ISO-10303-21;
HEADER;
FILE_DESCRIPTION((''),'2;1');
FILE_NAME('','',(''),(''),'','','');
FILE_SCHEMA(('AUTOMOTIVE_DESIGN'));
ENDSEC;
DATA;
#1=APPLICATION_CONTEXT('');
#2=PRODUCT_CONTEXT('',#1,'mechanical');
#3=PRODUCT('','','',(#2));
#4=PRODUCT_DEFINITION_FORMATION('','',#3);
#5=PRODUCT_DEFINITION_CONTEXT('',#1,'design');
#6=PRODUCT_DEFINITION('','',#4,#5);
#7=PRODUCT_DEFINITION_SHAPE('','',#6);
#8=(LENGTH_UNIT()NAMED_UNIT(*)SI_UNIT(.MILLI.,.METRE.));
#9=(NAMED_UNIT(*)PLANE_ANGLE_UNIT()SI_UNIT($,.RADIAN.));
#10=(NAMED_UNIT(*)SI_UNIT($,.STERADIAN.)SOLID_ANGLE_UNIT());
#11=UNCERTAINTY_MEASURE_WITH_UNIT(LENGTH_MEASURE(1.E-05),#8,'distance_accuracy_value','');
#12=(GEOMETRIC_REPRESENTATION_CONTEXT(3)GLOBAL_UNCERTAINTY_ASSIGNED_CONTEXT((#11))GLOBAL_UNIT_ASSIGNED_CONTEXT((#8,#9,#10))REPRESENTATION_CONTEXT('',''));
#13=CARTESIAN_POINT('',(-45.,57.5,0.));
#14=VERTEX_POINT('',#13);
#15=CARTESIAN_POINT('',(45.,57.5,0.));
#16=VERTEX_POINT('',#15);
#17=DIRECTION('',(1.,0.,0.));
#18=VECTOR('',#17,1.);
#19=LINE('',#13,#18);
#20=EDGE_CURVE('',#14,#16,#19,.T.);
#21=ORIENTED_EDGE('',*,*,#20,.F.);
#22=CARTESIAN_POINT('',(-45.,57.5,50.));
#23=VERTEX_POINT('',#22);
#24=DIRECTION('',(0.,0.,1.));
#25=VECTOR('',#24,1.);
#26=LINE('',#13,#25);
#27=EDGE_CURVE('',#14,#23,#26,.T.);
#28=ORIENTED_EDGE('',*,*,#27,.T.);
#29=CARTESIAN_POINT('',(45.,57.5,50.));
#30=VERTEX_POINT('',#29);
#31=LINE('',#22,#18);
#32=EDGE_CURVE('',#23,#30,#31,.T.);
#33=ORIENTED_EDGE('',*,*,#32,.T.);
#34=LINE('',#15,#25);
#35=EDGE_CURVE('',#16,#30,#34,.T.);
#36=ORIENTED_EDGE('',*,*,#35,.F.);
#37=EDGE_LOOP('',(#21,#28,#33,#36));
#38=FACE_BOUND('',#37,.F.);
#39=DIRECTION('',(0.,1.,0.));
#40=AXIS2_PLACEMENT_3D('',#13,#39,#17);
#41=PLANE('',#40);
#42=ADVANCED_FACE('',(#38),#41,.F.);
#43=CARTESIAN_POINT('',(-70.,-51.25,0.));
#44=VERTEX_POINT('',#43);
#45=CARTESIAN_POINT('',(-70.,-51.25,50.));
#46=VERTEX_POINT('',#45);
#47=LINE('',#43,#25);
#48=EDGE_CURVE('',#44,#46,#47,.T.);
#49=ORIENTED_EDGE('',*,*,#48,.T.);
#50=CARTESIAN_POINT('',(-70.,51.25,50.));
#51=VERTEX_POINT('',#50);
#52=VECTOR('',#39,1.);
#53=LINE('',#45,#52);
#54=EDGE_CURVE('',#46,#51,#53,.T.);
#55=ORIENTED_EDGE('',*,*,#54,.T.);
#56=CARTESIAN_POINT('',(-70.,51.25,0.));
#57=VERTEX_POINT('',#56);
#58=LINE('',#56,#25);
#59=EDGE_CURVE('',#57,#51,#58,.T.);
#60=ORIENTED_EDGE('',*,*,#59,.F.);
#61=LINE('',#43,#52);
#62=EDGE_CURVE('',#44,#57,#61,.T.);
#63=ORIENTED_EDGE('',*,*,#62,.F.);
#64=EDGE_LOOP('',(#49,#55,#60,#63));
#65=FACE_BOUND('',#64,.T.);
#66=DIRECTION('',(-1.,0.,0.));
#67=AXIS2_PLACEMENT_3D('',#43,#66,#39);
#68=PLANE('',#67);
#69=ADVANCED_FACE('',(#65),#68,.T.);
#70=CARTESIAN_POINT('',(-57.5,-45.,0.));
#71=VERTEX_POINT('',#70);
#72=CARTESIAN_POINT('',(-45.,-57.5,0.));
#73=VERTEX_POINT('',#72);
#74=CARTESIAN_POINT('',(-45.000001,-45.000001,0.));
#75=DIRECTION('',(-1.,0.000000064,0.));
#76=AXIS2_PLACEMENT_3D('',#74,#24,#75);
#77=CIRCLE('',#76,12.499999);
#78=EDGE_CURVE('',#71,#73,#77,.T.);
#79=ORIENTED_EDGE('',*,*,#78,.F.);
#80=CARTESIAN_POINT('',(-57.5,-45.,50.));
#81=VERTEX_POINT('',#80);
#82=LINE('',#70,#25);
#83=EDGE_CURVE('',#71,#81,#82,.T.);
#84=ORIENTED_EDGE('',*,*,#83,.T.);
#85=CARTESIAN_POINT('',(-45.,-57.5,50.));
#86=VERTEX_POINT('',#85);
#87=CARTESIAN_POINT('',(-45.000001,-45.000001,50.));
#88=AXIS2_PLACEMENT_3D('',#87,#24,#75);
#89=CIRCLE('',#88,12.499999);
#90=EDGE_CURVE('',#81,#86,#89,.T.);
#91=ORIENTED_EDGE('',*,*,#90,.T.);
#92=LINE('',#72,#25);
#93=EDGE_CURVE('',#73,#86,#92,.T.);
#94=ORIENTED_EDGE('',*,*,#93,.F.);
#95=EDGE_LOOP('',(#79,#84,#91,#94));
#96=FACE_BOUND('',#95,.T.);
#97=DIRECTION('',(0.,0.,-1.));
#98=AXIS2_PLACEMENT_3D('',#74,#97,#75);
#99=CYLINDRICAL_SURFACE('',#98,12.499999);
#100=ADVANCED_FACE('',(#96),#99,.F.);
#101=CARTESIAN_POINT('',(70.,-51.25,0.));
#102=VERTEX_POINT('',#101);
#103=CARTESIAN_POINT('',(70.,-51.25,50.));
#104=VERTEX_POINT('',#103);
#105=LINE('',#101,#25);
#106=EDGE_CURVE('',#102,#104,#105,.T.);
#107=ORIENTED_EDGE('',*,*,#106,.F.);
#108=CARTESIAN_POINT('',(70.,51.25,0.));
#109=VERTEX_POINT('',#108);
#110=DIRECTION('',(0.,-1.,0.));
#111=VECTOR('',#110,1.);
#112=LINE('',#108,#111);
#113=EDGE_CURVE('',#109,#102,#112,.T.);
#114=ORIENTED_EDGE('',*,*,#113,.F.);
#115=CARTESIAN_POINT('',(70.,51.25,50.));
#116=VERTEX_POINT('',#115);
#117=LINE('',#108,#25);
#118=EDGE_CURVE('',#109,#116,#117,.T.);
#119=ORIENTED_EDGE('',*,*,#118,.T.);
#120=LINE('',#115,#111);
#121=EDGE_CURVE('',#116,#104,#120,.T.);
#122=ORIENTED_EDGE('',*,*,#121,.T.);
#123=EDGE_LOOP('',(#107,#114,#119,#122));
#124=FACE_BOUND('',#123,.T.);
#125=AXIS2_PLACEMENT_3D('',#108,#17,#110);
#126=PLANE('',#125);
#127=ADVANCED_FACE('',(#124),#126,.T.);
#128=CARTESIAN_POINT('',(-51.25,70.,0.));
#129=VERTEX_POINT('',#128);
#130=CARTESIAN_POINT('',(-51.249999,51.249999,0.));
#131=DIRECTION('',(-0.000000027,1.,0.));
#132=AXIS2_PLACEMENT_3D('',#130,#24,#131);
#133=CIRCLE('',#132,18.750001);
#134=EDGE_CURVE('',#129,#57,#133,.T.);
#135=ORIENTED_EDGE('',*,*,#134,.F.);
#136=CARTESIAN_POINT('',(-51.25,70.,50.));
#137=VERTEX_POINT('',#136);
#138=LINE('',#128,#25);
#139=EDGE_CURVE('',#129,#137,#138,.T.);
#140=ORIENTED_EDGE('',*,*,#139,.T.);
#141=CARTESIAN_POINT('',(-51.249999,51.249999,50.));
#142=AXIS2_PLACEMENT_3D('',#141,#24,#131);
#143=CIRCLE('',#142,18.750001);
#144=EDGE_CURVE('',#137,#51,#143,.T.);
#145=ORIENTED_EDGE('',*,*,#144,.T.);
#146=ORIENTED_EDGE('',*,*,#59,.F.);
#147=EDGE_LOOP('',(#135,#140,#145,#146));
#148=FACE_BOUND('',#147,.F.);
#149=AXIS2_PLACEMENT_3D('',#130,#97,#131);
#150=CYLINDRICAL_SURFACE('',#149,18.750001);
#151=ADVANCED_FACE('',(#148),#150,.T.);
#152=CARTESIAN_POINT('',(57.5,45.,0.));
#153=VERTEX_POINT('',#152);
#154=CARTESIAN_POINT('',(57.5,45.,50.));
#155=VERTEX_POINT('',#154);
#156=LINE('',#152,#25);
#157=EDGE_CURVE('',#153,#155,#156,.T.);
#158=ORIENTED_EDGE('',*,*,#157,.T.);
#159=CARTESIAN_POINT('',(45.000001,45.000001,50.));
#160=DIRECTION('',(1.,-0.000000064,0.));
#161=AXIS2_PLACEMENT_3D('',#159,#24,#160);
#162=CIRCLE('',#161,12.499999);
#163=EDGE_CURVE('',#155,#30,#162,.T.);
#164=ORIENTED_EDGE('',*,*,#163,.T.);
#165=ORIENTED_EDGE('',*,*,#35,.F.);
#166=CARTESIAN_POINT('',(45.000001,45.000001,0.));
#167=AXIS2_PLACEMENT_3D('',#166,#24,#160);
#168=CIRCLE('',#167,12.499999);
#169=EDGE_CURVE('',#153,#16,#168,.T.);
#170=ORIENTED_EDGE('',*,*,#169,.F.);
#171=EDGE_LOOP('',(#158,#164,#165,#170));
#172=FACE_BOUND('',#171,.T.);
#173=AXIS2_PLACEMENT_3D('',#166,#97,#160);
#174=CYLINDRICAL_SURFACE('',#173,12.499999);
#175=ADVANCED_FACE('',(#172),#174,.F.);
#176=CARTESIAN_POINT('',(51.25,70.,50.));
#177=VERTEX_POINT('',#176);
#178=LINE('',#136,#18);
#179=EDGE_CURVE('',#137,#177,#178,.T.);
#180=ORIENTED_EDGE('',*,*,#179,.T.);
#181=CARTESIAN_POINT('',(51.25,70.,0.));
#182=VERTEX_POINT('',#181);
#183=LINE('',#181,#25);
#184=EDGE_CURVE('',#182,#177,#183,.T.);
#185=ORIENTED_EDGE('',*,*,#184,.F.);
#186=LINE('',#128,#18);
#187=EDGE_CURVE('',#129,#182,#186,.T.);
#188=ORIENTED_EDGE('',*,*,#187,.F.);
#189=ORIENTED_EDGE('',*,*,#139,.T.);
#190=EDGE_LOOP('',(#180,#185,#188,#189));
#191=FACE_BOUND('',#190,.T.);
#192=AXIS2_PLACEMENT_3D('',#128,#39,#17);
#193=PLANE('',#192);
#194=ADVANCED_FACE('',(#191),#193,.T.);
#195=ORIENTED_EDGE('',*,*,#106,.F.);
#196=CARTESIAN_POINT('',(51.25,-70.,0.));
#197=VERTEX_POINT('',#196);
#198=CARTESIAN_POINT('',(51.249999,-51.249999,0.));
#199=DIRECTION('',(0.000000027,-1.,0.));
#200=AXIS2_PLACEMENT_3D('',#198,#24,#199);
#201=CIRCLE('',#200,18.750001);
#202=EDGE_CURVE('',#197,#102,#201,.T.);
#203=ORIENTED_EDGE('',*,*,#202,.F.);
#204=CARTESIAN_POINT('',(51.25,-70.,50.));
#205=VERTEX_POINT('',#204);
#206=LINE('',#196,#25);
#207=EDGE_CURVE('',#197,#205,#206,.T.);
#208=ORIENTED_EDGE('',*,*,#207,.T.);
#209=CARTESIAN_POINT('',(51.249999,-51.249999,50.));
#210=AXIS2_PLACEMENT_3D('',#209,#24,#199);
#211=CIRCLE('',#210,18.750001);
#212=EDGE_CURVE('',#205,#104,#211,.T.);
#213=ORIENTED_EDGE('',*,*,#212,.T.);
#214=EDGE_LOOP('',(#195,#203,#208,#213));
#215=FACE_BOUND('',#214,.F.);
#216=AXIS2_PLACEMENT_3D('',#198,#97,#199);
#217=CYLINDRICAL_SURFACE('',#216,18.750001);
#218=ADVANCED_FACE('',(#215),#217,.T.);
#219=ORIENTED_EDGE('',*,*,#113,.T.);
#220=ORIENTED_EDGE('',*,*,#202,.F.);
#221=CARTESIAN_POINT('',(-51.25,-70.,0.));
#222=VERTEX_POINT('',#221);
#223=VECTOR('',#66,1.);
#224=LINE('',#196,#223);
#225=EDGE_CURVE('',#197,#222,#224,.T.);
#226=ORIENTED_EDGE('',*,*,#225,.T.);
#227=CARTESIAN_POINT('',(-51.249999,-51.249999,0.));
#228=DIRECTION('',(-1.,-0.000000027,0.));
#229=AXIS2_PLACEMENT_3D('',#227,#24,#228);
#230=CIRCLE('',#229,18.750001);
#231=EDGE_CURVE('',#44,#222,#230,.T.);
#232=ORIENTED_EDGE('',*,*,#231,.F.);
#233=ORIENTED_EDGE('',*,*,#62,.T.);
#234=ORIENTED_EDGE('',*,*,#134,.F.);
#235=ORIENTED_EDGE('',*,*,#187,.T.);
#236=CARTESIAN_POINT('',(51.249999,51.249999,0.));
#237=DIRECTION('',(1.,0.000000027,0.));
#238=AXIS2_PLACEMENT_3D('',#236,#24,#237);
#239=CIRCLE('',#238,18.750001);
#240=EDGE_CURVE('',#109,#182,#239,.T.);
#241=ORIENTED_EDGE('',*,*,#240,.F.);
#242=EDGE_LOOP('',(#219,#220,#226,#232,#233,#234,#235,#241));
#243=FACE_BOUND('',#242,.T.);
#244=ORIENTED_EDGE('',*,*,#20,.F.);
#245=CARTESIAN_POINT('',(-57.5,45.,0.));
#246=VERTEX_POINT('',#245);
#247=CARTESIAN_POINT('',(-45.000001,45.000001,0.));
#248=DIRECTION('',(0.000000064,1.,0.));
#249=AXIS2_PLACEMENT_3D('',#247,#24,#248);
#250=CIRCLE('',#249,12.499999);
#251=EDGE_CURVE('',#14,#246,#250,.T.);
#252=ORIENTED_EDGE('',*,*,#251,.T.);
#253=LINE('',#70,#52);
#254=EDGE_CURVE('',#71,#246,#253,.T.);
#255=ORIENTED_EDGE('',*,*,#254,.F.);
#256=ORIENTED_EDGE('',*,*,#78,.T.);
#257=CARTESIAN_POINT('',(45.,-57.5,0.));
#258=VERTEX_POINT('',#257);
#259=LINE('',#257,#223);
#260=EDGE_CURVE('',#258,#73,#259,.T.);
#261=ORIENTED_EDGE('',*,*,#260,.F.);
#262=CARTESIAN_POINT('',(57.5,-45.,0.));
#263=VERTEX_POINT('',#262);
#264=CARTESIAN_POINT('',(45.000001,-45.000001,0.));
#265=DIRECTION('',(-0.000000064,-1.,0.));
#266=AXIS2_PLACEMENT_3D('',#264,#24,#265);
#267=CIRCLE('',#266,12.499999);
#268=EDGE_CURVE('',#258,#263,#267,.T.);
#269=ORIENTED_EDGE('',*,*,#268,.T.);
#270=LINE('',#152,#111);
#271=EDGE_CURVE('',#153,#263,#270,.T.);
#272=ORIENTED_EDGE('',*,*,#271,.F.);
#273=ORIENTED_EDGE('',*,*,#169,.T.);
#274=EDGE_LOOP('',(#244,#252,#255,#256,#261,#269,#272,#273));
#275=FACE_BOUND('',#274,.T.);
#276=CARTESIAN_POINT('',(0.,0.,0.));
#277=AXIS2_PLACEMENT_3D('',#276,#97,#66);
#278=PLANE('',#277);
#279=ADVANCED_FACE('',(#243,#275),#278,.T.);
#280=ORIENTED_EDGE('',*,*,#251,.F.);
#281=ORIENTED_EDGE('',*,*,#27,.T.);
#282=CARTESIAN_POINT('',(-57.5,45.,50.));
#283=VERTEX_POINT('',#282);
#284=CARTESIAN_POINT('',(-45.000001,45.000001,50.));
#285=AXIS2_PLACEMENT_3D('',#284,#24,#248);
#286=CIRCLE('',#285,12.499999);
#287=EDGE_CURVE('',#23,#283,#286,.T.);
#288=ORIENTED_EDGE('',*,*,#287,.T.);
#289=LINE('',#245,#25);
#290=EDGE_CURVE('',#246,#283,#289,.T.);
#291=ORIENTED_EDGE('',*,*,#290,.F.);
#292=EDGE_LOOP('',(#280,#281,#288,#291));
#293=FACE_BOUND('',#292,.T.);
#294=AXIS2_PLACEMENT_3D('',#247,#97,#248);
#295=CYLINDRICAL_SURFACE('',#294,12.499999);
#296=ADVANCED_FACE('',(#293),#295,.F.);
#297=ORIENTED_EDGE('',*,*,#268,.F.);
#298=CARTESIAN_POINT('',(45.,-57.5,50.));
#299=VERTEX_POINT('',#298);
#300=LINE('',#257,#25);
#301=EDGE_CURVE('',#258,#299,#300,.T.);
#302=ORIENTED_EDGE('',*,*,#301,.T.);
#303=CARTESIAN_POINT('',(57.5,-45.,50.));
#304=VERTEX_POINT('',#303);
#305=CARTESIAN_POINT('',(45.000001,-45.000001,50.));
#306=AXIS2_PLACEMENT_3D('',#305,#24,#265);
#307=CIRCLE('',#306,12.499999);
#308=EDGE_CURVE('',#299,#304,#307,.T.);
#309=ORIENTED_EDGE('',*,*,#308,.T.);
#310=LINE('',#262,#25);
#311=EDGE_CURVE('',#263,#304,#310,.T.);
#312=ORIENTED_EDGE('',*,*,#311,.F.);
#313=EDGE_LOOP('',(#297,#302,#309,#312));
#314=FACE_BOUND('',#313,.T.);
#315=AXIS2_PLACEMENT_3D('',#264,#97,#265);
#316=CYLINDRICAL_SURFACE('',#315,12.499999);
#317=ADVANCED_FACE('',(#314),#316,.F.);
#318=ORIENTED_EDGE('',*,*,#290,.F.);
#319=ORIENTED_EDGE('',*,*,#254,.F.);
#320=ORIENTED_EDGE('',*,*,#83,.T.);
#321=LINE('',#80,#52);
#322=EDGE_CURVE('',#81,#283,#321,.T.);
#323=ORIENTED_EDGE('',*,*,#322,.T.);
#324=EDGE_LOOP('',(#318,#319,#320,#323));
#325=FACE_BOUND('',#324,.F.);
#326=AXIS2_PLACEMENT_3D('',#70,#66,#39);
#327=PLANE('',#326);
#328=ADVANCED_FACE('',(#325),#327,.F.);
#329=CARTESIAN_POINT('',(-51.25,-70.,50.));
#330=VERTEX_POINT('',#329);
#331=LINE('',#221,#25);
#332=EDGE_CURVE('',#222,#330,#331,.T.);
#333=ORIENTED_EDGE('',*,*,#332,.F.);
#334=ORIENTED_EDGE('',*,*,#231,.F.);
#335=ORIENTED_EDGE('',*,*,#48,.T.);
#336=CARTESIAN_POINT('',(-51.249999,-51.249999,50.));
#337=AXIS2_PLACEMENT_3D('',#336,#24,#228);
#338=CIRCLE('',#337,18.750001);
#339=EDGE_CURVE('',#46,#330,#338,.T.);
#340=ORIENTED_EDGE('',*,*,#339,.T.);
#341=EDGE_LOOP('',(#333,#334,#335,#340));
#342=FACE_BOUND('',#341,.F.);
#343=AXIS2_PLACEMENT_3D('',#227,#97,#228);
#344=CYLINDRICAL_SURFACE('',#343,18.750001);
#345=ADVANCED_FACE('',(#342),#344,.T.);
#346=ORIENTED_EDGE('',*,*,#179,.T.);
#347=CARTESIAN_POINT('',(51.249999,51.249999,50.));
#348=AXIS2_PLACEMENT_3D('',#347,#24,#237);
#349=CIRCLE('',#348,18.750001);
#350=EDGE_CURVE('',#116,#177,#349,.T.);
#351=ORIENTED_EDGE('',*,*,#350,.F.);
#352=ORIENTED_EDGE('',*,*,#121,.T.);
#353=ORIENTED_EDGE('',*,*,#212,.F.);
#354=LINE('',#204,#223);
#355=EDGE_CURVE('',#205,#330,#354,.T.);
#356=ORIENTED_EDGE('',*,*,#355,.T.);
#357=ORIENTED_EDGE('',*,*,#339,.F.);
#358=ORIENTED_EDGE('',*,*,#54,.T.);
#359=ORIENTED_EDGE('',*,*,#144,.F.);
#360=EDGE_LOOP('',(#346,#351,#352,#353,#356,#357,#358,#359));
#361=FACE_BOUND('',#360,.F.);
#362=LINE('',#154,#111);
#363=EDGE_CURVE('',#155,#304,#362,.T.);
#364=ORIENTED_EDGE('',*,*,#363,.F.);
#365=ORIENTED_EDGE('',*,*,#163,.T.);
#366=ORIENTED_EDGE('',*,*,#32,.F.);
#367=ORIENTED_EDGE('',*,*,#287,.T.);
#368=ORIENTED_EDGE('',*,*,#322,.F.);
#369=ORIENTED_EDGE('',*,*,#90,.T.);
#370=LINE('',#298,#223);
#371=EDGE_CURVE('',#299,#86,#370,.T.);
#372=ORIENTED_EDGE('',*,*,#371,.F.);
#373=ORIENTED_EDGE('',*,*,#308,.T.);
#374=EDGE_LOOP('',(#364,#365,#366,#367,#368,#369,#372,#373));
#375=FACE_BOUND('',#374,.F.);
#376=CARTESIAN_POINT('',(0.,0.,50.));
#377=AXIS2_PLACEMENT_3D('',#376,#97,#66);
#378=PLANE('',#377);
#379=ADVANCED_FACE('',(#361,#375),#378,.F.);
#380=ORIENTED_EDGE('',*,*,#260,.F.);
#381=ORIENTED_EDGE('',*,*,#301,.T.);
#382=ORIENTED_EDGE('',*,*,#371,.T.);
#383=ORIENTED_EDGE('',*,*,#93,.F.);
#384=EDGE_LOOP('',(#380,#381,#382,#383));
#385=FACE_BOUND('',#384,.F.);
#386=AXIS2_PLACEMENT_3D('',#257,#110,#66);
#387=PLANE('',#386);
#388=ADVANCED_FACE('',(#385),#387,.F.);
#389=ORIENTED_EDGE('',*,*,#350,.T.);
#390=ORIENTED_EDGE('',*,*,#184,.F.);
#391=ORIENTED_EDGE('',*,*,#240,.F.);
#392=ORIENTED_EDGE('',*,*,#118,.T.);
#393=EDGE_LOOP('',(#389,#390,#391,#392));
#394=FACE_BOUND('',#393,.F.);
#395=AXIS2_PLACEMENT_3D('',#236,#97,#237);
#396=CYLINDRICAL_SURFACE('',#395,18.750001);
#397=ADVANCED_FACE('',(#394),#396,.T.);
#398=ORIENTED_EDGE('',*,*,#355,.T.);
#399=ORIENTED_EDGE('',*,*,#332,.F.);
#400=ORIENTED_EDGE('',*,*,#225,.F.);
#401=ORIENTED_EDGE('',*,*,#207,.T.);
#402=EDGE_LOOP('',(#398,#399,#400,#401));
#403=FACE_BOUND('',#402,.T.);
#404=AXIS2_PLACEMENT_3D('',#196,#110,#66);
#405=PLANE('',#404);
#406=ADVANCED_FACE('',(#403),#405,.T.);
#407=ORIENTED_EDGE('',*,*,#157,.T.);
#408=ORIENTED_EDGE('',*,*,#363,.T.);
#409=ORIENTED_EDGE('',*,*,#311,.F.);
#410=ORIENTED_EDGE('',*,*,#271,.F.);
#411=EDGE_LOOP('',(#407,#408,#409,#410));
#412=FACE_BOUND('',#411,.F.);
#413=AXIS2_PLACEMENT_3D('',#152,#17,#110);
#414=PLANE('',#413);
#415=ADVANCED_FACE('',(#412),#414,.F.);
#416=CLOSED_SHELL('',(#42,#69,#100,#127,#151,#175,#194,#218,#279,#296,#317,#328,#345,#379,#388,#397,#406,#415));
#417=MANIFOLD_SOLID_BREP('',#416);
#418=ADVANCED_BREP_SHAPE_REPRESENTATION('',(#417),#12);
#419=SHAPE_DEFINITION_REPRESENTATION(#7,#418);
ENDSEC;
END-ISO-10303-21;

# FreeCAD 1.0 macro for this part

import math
import FreeCAD as App
import Part
import Sketcher
from FreeCAD import Vector
Q = App.Units.Quantity

doc = App.newDocument("Part")
body = doc.addObject("PartDesign::Body", "Body")

sketch1 = body.newObject("Sketcher::SketchObject", "Sketch")
sketch1.AttachmentSupport = (doc.getObject("XY_Plane"), [""])
sketch1.MapMode = "FlatFace"
sketch1.addGeometry([
    Part.LineSegment(Vector(51, 70, 0), Vector(-51, 70, 0)),
    Part.ArcOfCircle(Part.Circle(Vector(-51, 51, 0), Vector(0, 0, 1), 19), math.radians(90), math.radians(180)),
    Part.LineSegment(Vector(-70, 51, 0), Vector(-70, -51, 0)),
    Part.ArcOfCircle(Part.Circle(Vector(-51, -51, 0), Vector(0, 0, 1), 19), math.radians(-180), math.radians(-90)),
    Part.LineSegment(Vector(-51, -70, 0), Vector(51, -70, 0)),
    Part.ArcOfCircle(Part.Circle(Vector(51, -51, 0), Vector(0, 0, 1), 19), math.radians(-90), math.radians(0)),
    Part.LineSegment(Vector(70, -51, 0), Vector(70, 51, 0)),
    Part.ArcOfCircle(Part.Circle(Vector(51, 51, 0), Vector(0, 0, 1), 19), math.radians(0), math.radians(90)),
    Part.LineSegment(Vector(-45, 58, 0), Vector(45, 58, 0)),
    Part.ArcOfCircle(Part.Circle(Vector(45, 45, 0), Vector(0, 0, 1), 12), math.radians(0), math.radians(90)),
    Part.LineSegment(Vector(58, 45, 0), Vector(58, -45, 0)),
    Part.ArcOfCircle(Part.Circle(Vector(45, -45, 0), Vector(0, 0, 1), 12), math.radians(-90), math.radians(0)),
    Part.LineSegment(Vector(45, -58, 0), Vector(-45, -58, 0)),
    Part.ArcOfCircle(Part.Circle(Vector(-45, -45, 0), Vector(0, 0, 1), 12), math.radians(180), math.radians(270)),
    Part.LineSegment(Vector(-58, -45, 0), Vector(-58, 45, 0)),
    Part.ArcOfCircle(Part.Circle(Vector(-45, 45, 0), Vector(0, 0, 1), 12), math.radians(90), math.radians(180)),
], False)
sketch1.addConstraint([
    Sketcher.Constraint("Tangent", 0, 2, 1, 1),
    Sketcher.Constraint("Tangent", 1, 2, 2, 1),
    Sketcher.Constraint("Tangent", 2, 2, 3, 1),
    Sketcher.Constraint("Tangent", 3, 2, 4, 1),
    Sketcher.Constraint("Tangent", 4, 2, 5, 1),
    Sketcher.Constraint("Tangent", 5, 2, 6, 1),
    Sketcher.Constraint("Tangent", 6, 2, 7, 1),
    Sketcher.Constraint("Tangent", 7, 2, 0, 1),
    Sketcher.Constraint("Tangent", 8, 2, 9, 2),
    Sketcher.Constraint("Tangent", 9, 1, 10, 1),
    Sketcher.Constraint("Tangent", 10, 2, 11, 2),
    Sketcher.Constraint("Tangent", 11, 1, 12, 1),
    Sketcher.Constraint("Tangent", 12, 2, 13, 2),
    Sketcher.Constraint("Tangent", 13, 1, 14, 1),
    Sketcher.Constraint("Tangent", 14, 2, 15, 2),
    Sketcher.Constraint("Tangent", 15, 1, 8, 1),
    Sketcher.Constraint("Horizontal", 0),
    Sketcher.Constraint("Vertical", 2),
    Sketcher.Constraint("Horizontal", 4),
    Sketcher.Constraint("Vertical", 6),
    Sketcher.Constraint("Horizontal", 8),
    Sketcher.Constraint("Vertical", 10),
    Sketcher.Constraint("Horizontal", 12),
    Sketcher.Constraint("Vertical", 14),
    Sketcher.Constraint("Equal", 1, 3),
    Sketcher.Constraint("Equal", 3, 5),
    Sketcher.Constraint("Equal", 5, 7),
    Sketcher.Constraint("Equal", 9, 11),
    Sketcher.Constraint("Equal", 11, 13),
    Sketcher.Constraint("Equal", 13, 15),
    Sketcher.Constraint("Symmetric", 1, 3, 5, 3, -1, 1),
    Sketcher.Constraint("Symmetric", 9, 3, 13, 3, -1, 1),
    Sketcher.Constraint("Equal", 4, 2),
    Sketcher.Constraint("Equal", 12, 10),
    Sketcher.Constraint("Radius", 9, Q("12.499999 mm")),
    Sketcher.Constraint("DistanceX", 8, 1, 8, 2, Q("90 mm")),
    Sketcher.Constraint("Radius", 1, Q("18.750001 mm")),
    Sketcher.Constraint("DistanceX", 0, 2, 0, 1, Q("102.5 mm")),
])
pad1 = body.newObject("PartDesign::Pad", "Pad")
pad1.Profile = sketch1
pad1.Length = 50

doc.recompute()
